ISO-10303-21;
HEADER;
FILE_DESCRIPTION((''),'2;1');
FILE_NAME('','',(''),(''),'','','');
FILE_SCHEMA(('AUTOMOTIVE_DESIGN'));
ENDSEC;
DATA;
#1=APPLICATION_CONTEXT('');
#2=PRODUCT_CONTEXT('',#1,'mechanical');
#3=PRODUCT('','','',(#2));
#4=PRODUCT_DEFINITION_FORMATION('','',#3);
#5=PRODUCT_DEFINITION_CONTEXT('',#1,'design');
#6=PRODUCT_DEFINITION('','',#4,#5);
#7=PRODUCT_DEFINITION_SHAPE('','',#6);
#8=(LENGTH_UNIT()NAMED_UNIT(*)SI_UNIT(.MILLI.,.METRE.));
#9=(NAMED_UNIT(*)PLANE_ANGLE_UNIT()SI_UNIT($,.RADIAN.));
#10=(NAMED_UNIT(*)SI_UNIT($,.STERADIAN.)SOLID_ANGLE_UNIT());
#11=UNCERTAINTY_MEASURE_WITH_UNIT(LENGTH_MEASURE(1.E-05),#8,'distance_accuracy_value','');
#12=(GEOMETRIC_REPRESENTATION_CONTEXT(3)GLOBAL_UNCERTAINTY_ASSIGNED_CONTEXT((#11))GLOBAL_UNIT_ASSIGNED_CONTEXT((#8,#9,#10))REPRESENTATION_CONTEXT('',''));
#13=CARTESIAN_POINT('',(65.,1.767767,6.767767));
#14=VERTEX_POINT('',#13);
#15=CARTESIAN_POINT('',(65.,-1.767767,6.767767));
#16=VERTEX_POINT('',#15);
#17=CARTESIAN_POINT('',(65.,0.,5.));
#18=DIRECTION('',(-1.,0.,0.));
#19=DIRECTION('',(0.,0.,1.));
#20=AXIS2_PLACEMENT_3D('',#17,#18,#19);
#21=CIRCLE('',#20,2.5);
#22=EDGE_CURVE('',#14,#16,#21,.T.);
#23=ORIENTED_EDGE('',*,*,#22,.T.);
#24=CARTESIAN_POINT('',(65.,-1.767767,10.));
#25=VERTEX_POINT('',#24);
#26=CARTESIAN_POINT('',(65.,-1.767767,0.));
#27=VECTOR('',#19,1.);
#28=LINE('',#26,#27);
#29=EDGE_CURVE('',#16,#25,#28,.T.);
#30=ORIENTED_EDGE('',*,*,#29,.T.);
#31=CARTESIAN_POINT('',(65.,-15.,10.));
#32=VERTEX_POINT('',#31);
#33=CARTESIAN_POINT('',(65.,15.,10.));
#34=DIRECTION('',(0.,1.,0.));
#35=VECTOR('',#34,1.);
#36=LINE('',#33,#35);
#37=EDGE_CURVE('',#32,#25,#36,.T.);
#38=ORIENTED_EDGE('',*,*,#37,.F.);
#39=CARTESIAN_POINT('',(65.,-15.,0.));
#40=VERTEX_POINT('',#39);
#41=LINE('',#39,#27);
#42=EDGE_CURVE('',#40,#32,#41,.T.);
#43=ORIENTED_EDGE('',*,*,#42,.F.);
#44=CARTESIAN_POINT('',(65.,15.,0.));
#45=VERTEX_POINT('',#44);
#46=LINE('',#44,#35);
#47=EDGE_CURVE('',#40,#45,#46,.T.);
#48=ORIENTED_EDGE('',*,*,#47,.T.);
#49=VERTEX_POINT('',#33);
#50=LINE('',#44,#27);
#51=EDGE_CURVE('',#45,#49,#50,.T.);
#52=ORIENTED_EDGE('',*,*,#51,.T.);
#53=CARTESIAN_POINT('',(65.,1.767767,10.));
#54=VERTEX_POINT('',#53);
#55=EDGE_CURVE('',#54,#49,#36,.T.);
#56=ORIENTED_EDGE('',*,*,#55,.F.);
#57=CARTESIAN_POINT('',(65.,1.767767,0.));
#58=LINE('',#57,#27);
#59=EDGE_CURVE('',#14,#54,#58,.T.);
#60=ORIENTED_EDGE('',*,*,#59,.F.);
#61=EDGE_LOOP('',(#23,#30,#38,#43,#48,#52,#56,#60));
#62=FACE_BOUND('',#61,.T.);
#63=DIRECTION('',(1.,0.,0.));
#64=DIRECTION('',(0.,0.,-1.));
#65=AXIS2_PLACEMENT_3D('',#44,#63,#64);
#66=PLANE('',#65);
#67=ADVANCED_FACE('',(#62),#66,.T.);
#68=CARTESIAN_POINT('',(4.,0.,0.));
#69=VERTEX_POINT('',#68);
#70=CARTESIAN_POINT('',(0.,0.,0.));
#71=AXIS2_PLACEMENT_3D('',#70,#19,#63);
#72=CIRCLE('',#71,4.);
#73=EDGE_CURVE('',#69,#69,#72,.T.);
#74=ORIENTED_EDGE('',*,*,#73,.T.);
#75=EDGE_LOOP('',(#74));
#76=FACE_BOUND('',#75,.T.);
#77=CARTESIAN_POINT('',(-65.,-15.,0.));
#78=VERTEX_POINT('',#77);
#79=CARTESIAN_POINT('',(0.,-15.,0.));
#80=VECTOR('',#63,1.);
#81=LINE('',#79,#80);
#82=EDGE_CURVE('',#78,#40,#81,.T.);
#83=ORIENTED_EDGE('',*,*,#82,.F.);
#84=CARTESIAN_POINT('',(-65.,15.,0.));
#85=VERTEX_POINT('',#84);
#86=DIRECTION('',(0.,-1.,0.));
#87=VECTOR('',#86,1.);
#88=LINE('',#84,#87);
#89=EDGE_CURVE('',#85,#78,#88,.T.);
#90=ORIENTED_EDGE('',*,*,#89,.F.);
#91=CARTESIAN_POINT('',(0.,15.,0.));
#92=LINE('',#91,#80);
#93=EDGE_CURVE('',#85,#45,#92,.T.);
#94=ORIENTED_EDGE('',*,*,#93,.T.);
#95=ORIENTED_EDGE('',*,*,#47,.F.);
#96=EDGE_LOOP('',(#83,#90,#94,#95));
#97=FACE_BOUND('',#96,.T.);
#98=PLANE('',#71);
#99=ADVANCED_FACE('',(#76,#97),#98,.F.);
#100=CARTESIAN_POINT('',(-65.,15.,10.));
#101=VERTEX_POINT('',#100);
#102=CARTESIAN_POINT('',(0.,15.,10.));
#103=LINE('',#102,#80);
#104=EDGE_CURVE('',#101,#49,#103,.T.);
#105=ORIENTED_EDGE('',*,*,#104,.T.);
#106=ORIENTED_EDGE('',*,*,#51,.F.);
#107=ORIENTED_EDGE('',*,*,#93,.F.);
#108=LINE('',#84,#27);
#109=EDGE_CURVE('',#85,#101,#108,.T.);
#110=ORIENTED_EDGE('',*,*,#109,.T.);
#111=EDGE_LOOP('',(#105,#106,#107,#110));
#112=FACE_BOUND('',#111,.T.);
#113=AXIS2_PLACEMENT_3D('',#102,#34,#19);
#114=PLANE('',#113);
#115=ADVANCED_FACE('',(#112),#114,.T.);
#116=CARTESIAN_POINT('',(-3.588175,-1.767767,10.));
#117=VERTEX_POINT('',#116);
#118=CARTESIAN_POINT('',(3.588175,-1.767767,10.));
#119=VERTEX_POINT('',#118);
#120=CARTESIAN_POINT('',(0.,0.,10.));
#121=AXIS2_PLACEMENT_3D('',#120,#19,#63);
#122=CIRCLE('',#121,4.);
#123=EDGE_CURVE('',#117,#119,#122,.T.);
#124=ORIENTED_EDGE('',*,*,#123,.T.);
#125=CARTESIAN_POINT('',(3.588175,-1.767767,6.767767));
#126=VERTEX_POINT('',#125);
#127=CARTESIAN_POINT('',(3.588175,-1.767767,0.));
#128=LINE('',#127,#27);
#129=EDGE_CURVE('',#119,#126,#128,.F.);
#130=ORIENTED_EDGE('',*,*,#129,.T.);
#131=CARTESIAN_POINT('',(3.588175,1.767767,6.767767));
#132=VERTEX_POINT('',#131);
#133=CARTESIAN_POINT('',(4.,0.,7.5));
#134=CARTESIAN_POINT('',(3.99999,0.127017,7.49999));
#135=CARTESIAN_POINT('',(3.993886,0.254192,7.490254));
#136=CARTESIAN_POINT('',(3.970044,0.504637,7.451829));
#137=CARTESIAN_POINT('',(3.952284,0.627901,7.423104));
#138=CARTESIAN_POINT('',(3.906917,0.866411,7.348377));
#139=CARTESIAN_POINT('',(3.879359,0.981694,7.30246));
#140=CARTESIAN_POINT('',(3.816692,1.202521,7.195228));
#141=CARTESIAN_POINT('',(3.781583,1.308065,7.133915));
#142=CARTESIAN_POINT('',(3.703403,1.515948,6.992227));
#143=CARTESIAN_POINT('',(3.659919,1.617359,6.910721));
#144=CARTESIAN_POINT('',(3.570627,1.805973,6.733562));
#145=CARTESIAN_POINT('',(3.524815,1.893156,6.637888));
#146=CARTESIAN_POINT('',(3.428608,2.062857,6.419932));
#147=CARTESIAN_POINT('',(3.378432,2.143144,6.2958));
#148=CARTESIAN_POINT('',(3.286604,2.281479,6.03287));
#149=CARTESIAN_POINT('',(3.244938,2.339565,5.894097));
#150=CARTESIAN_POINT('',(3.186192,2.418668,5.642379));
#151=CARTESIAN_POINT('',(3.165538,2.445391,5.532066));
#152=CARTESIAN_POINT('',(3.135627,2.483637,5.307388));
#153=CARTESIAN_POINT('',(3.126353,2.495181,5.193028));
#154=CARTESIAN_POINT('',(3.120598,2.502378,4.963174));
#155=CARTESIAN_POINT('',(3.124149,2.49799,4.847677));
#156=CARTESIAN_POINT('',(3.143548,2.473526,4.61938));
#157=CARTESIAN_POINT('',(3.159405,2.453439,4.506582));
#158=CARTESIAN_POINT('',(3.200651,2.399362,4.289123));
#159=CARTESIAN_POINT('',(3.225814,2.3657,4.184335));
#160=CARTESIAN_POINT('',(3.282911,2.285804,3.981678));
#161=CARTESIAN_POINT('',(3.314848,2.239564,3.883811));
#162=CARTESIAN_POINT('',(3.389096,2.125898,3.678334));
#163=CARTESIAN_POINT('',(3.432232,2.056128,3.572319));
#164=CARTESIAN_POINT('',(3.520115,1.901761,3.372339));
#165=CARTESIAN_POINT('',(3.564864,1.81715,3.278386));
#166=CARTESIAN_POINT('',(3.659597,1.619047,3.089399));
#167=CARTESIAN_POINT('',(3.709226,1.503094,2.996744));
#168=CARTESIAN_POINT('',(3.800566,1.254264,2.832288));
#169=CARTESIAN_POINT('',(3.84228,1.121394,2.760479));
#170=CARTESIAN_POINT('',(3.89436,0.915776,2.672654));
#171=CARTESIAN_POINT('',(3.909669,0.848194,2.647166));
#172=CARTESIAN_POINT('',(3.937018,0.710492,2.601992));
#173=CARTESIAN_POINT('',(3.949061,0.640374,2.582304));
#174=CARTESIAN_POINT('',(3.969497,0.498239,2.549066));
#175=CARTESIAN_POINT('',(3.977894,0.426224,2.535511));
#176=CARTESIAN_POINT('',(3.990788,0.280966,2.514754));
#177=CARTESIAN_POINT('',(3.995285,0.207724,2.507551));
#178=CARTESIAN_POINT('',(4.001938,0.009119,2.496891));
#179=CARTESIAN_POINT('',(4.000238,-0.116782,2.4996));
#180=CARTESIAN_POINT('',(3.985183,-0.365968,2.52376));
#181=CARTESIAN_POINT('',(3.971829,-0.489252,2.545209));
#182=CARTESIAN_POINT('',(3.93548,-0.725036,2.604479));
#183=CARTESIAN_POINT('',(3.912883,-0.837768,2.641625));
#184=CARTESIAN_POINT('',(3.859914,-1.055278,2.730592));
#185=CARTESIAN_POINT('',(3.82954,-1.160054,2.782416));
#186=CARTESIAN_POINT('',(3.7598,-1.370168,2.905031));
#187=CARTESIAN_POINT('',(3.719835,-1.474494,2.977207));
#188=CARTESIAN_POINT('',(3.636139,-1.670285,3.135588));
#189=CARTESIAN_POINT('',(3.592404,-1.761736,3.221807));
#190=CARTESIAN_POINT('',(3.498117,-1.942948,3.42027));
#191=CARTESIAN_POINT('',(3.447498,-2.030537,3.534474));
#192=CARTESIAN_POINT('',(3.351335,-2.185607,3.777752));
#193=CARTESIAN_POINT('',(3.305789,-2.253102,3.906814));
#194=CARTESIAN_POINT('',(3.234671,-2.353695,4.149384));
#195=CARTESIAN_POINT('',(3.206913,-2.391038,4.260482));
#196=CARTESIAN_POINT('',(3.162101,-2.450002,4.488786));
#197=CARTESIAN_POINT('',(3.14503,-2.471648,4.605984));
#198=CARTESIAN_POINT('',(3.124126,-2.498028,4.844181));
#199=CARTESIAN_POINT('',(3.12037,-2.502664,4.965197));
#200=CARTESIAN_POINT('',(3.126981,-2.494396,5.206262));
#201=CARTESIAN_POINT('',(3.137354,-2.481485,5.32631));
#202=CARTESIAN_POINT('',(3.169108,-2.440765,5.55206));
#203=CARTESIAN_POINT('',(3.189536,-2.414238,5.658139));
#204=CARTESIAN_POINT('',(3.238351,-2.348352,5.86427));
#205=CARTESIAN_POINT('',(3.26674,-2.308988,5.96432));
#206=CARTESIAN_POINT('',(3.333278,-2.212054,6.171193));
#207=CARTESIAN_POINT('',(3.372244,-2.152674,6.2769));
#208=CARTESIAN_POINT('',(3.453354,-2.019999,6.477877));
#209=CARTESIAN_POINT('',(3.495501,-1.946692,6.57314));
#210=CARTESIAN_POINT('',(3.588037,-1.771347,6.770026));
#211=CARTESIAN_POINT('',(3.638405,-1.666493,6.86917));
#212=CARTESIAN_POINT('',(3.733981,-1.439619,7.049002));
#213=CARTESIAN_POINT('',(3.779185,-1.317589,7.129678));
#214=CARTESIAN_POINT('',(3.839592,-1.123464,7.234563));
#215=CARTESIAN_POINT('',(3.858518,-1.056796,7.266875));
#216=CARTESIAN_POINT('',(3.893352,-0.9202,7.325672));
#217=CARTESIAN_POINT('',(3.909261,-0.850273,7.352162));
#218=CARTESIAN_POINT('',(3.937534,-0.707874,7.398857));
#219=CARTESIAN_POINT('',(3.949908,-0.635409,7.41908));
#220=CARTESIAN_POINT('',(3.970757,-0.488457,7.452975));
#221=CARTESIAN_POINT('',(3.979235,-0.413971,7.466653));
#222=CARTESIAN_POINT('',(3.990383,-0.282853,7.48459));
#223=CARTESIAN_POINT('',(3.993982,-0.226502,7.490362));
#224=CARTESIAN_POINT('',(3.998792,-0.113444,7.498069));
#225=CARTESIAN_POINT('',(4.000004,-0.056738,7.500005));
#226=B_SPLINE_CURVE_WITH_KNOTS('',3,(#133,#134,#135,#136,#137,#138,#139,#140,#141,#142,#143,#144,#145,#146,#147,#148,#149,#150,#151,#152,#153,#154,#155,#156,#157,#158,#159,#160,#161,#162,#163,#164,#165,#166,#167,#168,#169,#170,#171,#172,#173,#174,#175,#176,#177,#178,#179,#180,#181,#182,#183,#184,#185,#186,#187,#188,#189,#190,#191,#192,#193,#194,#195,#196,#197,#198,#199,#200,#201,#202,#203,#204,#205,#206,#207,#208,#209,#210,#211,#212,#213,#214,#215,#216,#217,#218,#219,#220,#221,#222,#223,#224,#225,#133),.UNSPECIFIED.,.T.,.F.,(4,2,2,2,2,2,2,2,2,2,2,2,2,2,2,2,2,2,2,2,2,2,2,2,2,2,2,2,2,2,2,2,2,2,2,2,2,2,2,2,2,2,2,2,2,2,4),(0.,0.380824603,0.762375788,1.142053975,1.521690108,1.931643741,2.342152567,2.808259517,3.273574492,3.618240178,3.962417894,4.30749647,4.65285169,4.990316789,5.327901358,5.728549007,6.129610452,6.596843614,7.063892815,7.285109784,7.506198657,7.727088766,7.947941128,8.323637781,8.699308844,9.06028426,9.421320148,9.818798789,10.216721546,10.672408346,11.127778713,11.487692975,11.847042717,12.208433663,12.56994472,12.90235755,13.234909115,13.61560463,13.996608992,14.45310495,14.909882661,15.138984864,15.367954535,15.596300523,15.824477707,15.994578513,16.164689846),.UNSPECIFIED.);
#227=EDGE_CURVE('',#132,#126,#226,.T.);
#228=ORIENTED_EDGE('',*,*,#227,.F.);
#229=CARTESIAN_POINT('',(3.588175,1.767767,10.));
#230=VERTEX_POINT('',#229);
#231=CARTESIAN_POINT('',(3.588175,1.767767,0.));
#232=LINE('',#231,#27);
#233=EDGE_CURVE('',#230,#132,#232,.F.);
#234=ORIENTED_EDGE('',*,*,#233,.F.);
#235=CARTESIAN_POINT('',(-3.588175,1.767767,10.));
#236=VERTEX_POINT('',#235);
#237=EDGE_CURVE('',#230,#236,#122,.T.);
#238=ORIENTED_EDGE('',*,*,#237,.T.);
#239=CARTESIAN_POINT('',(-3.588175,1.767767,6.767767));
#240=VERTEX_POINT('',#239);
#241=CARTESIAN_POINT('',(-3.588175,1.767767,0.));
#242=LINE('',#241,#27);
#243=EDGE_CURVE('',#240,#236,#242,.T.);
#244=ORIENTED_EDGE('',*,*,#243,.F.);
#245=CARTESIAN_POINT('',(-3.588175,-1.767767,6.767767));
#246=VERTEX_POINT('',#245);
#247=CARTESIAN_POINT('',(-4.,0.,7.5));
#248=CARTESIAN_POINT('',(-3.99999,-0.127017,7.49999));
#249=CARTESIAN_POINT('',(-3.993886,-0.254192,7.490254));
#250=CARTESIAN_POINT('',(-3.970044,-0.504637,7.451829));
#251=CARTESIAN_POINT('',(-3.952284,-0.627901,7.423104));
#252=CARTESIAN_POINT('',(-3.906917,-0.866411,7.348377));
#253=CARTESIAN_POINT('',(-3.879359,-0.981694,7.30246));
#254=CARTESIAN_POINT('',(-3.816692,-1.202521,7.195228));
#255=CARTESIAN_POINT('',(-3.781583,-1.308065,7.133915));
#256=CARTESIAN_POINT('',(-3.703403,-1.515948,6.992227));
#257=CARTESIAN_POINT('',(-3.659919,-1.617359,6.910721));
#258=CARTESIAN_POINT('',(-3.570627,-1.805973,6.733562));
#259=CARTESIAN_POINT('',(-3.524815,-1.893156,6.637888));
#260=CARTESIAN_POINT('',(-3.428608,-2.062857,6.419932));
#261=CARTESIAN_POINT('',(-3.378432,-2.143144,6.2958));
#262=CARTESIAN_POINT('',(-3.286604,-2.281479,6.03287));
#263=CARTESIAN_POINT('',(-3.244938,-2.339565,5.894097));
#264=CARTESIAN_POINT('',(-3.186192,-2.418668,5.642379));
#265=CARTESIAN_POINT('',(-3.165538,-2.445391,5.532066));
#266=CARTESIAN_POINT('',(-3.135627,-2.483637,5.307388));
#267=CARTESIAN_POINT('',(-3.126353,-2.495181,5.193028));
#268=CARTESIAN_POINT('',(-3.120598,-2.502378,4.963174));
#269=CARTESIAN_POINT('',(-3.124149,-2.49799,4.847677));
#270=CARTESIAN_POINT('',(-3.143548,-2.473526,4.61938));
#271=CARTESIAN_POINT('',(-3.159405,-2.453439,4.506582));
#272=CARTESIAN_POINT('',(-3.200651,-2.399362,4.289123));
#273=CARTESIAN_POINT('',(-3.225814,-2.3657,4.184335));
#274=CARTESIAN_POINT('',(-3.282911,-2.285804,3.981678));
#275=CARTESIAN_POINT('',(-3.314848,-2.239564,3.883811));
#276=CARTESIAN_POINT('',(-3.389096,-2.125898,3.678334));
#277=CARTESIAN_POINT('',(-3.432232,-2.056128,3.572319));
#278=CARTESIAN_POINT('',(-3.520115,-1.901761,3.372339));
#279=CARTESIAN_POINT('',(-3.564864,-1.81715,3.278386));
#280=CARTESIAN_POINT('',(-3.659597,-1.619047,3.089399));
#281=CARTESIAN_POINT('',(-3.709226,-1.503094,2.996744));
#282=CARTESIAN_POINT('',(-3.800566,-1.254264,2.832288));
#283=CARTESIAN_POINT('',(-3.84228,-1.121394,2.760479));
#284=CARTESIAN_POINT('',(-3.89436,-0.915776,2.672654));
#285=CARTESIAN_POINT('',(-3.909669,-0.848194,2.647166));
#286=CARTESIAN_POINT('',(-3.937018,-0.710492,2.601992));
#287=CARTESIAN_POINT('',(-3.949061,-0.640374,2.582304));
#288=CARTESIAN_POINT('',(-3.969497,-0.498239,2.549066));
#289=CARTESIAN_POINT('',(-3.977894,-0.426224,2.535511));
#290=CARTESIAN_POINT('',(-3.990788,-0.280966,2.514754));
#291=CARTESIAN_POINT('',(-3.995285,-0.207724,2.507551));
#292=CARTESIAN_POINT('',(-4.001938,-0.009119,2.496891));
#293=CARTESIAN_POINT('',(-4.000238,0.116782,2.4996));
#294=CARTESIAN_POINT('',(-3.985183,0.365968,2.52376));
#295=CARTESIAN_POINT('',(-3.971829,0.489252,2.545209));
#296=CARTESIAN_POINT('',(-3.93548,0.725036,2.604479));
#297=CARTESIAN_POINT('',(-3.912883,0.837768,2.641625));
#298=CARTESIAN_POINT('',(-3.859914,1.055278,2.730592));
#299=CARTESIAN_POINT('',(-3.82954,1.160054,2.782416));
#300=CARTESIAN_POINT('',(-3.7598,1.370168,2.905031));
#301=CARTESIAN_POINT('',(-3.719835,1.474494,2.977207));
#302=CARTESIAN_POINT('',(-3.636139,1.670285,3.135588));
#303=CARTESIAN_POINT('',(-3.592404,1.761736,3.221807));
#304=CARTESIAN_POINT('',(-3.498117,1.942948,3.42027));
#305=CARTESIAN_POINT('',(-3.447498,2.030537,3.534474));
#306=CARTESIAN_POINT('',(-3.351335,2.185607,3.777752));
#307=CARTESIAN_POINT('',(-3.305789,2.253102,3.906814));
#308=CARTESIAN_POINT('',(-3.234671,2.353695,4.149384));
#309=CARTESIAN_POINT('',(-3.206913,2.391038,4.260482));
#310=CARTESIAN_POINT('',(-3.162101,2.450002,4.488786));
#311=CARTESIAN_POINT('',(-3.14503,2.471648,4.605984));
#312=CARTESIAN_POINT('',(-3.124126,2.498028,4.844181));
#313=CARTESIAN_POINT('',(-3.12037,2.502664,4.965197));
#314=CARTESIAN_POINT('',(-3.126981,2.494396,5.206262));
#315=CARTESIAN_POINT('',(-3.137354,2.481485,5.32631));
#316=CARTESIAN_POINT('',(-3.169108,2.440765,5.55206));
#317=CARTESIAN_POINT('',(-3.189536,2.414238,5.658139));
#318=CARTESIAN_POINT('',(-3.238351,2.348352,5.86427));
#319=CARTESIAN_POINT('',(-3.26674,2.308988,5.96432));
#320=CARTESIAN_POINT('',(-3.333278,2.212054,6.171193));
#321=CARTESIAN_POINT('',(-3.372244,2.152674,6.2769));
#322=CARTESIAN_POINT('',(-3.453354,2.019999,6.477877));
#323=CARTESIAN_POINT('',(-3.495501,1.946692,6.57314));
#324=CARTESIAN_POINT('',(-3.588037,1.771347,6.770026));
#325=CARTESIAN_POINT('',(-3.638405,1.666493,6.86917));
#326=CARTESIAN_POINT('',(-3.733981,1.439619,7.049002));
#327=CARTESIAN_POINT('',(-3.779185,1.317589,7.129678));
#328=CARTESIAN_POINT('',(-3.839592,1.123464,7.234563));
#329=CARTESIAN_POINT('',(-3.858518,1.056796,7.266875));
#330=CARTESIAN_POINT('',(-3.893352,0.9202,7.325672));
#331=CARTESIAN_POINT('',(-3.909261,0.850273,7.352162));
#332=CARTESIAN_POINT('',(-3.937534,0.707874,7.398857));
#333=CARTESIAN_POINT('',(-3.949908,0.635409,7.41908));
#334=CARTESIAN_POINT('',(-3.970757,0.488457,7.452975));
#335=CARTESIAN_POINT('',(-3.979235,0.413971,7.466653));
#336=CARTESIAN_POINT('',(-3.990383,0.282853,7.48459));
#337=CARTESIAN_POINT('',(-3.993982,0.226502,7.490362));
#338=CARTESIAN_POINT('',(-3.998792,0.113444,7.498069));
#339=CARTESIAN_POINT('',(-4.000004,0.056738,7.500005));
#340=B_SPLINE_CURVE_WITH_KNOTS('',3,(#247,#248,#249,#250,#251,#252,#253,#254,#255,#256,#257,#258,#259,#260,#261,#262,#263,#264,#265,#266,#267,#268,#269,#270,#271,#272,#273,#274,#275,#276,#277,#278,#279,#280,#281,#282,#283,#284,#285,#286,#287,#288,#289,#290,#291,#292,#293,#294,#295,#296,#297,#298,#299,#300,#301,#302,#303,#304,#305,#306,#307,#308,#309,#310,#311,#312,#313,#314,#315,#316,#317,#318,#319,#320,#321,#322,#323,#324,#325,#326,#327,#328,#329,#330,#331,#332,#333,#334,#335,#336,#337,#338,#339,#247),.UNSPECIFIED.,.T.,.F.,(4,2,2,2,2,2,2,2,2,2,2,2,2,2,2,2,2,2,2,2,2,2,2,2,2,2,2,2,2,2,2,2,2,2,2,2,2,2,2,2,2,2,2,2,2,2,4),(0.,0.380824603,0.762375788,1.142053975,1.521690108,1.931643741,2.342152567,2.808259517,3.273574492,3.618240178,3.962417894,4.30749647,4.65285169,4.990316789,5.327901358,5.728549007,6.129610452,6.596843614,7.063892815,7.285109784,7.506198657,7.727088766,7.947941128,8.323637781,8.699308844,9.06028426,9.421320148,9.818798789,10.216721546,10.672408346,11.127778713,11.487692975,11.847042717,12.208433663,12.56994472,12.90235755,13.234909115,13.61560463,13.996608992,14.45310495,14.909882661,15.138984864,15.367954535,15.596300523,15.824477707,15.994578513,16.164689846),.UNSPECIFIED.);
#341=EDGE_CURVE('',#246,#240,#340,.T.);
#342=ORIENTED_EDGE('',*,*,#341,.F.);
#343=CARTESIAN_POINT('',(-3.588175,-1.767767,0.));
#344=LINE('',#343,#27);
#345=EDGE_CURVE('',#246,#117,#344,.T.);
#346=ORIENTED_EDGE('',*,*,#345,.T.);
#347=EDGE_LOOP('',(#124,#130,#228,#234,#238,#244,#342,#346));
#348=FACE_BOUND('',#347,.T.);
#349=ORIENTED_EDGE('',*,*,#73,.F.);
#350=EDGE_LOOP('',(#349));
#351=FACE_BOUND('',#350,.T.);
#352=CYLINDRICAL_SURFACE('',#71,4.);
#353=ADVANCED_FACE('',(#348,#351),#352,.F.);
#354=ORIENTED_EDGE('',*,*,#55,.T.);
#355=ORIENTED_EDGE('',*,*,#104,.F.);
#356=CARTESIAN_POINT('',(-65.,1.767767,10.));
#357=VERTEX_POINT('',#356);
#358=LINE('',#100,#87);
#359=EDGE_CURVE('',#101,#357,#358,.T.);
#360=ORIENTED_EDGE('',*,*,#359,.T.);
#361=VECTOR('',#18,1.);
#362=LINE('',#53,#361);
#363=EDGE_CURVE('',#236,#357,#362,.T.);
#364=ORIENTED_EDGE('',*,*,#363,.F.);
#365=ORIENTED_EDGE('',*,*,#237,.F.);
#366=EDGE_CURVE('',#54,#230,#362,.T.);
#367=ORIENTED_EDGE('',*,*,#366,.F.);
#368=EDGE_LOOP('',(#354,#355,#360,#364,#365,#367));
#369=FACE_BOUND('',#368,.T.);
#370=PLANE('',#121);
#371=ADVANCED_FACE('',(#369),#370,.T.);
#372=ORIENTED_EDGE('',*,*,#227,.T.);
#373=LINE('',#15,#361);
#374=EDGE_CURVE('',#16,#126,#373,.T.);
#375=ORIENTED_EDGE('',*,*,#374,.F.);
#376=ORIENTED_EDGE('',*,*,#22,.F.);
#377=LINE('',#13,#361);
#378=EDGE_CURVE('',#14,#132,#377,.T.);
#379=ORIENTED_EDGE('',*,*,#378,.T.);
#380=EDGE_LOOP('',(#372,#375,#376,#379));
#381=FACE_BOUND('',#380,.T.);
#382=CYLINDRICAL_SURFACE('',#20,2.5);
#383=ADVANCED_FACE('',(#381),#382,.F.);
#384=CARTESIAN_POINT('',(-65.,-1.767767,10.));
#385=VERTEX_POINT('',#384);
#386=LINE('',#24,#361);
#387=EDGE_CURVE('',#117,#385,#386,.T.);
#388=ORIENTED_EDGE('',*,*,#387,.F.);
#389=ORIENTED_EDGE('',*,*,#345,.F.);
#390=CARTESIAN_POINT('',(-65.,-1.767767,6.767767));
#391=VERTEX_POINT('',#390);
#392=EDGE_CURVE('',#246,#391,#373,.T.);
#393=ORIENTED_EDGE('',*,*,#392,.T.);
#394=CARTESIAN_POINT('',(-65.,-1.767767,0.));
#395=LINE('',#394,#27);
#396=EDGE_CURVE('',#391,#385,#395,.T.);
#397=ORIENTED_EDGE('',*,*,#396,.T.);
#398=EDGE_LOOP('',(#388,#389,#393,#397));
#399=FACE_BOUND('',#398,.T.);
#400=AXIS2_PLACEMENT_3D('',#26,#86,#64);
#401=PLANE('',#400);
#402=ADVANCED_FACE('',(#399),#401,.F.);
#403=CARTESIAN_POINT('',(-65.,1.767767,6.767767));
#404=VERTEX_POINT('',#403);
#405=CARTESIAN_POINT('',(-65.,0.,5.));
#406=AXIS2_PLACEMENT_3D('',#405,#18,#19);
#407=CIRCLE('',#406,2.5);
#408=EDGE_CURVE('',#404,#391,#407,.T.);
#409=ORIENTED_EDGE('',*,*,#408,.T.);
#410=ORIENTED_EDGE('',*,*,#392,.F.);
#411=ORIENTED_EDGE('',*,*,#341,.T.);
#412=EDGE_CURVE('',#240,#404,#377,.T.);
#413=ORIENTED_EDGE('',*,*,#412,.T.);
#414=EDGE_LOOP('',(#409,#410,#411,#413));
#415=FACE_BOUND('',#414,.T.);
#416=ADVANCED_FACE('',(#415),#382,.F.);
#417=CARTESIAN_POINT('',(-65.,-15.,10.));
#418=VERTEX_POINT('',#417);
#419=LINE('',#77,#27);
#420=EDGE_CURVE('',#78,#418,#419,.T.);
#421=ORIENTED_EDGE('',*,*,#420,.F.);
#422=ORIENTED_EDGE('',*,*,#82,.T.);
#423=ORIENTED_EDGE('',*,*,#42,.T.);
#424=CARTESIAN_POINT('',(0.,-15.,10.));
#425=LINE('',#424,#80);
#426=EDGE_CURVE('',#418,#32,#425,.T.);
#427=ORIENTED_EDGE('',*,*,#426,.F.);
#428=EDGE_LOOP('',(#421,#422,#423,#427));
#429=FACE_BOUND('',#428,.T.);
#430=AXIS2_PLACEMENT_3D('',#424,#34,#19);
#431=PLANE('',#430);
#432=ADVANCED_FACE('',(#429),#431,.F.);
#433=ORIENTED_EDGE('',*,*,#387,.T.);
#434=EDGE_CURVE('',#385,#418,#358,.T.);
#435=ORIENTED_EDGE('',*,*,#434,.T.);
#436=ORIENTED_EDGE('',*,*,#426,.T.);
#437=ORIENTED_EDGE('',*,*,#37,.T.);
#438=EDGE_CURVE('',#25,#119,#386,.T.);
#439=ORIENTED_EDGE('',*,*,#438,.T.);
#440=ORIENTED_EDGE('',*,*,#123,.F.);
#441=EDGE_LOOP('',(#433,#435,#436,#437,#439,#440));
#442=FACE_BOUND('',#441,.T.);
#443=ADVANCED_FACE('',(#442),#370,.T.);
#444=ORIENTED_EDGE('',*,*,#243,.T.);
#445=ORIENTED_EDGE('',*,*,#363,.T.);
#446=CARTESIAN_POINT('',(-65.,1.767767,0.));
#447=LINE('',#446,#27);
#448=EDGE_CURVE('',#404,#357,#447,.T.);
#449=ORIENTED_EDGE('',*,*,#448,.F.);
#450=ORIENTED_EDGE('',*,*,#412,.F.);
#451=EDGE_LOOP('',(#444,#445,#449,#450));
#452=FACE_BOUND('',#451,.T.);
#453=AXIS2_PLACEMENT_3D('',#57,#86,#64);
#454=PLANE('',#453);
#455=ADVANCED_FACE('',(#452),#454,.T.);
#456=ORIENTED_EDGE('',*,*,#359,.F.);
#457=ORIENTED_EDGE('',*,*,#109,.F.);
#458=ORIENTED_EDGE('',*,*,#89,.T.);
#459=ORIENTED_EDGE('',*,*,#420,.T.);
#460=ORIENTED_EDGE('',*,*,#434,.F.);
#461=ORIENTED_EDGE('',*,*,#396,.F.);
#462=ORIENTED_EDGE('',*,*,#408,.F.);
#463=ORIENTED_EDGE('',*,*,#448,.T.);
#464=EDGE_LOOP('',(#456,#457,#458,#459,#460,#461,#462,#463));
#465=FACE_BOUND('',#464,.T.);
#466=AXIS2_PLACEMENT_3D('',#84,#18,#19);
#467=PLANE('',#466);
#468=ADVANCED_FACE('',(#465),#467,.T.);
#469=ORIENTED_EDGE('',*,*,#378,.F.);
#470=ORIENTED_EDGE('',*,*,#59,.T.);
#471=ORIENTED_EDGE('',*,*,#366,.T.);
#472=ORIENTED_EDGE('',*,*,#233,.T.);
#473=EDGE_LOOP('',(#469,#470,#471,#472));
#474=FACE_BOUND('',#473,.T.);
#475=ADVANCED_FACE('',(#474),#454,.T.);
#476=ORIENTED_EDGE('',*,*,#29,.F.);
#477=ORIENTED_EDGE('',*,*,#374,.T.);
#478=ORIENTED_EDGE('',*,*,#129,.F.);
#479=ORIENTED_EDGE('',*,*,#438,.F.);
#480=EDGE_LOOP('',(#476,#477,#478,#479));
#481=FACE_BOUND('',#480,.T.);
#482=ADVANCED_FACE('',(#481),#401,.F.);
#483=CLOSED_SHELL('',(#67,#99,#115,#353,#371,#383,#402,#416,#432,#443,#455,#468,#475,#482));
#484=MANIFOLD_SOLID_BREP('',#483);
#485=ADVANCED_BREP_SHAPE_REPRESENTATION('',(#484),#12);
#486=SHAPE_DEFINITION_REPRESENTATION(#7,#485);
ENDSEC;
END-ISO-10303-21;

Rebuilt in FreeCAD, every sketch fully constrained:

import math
import FreeCAD as App
import Part
import Sketcher
from FreeCAD import Vector
Q = App.Units.Quantity

doc = App.newDocument("Part")
body = doc.addObject("PartDesign::Body", "Body")

# Sketch on XY plane
sketch1 = doc.addObject("Sketcher::SketchObject", "Sketch")
body.addObject(sketch1)
sketch1.AttachmentSupport = (doc.XY_Plane, [""])
sketch1.MapMode = "FlatFace"
sketch1.addGeometry([
    Part.LineSegment(Vector(50, 15, 0), Vector(-50, 15, 0)),  # 0
    Part.ArcOfCircle(Part.Circle(Vector(-50, 0, 0), Vector(0, 0, 1), 15), math.radians(90), math.radians(270)),  # 1
    Part.LineSegment(Vector(-50, -15, 0), Vector(50, -15, 0)),  # 2
    Part.ArcOfCircle(Part.Circle(Vector(50, 0, 0), Vector(0, 0, 1), 15), math.radians(-90), math.radians(90)),  # 3
    Part.Circle(Vector(0, 0, 0), Vector(0, 0, 1), 4),  # 4
], False)
sketch1.addConstraint([
    Sketcher.Constraint("Tangent", 0, 2, 1, 1),
    Sketcher.Constraint("Tangent", 1, 2, 2, 1),
    Sketcher.Constraint("Tangent", 2, 2, 3, 1),
    Sketcher.Constraint("Tangent", 3, 2, 0, 1),
    Sketcher.Constraint("Horizontal", 0),
    Sketcher.Constraint("Horizontal", 2),
    Sketcher.Constraint("Coincident", 4, 3, -1, 1),
    Sketcher.Constraint("Symmetric", 1, 3, 3, 3, -1, 1),
    Sketcher.Constraint("Diameter", 4, Q("8 mm")),
    Sketcher.Constraint("Radius", 1, Q("15 mm")),
    Sketcher.Constraint("DistanceX", 0, 2, 0, 1, Q("100 mm")),
])
pad1 = doc.addObject("PartDesign::Pad", "Pad")
body.addObject(pad1)
pad1.Profile = sketch1
pad1.Length = 10

# Sketch on XY plane
sketch2 = doc.addObject("Sketcher::SketchObject", "Sketch001")
body.addObject(sketch2)
sketch2.AttachmentSupport = (doc.XY_Plane, [""])
sketch2.MapMode = "FlatFace"
sketch2.AttachmentOffset = App.Placement(Vector(0, 0, 10), App.Rotation())
sketch2.addGeometry([
    Part.LineSegment(Vector(2, 12, 0), Vector(2, 8, 0)),  # 0
    Part.LineSegment(Vector(2, 8, 0), Vector(50, 8, 0)),  # 1
    Part.LineSegment(Vector(50, 8, 0), Vector(50, 12, 0)),  # 2
    Part.LineSegment(Vector(50, 12, 0), Vector(2, 12, 0)),  # 3
    Part.LineSegment(Vector(-50, 12, 0), Vector(-50, 8, 0)),  # 4
    Part.LineSegment(Vector(-50, 8, 0), Vector(-2, 8, 0)),  # 5
    Part.LineSegment(Vector(-2, 8, 0), Vector(-2, 12, 0)),  # 6
    Part.LineSegment(Vector(-2, 12, 0), Vector(-50, 12, 0)),  # 7
    Part.LineSegment(Vector(-50, -8, 0), Vector(-50, -12, 0)),  # 8
    Part.LineSegment(Vector(-50, -12, 0), Vector(-2, -12, 0)),  # 9
    Part.LineSegment(Vector(-2, -12, 0), Vector(-2, -8, 0)),  # 10
    Part.LineSegment(Vector(-2, -8, 0), Vector(-50, -8, 0)),  # 11
    Part.LineSegment(Vector(2, -8, 0), Vector(2, -12, 0)),  # 12
    Part.LineSegment(Vector(2, -12, 0), Vector(50, -12, 0)),  # 13
    Part.LineSegment(Vector(50, -12, 0), Vector(50, -8, 0)),  # 14
    Part.LineSegment(Vector(50, -8, 0), Vector(2, -8, 0)),  # 15
], False)
sketch2.addConstraint([
    Sketcher.Constraint("Coincident", 0, 2, 1, 1),
    Sketcher.Constraint("Coincident", 1, 2, 2, 1),
    Sketcher.Constraint("Coincident", 2, 2, 3, 1),
    Sketcher.Constraint("Coincident", 3, 2, 0, 1),
    Sketcher.Constraint("Coincident", 4, 2, 5, 1),
    Sketcher.Constraint("Coincident", 5, 2, 6, 1),
    Sketcher.Constraint("Coincident", 6, 2, 7, 1),
    Sketcher.Constraint("Coincident", 7, 2, 4, 1),
    Sketcher.Constraint("Coincident", 8, 2, 9, 1),
    Sketcher.Constraint("Coincident", 9, 2, 10, 1),
    Sketcher.Constraint("Coincident", 10, 2, 11, 1),
    Sketcher.Constraint("Coincident", 11, 2, 8, 1),
    Sketcher.Constraint("Coincident", 12, 2, 13, 1),
    Sketcher.Constraint("Coincident", 13, 2, 14, 1),
    Sketcher.Constraint("Coincident", 14, 2, 15, 1),
    Sketcher.Constraint("Coincident", 15, 2, 12, 1),
    Sketcher.Constraint("Vertical", 0),
    Sketcher.Constraint("Horizontal", 1),
    Sketcher.Constraint("Vertical", 2),
    Sketcher.Constraint("Horizontal", 3),
    Sketcher.Constraint("Vertical", 4),
    Sketcher.Constraint("Horizontal", 5),
    Sketcher.Constraint("Vertical", 6),
    Sketcher.Constraint("Horizontal", 7),
    Sketcher.Constraint("Vertical", 8),
    Sketcher.Constraint("Horizontal", 9),
    Sketcher.Constraint("Vertical", 10),
    Sketcher.Constraint("Horizontal", 11),
    Sketcher.Constraint("Vertical", 12),
    Sketcher.Constraint("Horizontal", 13),
    Sketcher.Constraint("Vertical", 14),
    Sketcher.Constraint("Horizontal", 15),
    Sketcher.Constraint("Symmetric", 2, 2, 8, 2, -1, 1),
    Sketcher.Constraint("Symmetric", 0, 2, 10, 2, -1, 1),
    Sketcher.Constraint("Symmetric", 6, 2, 12, 2, -1, 1),
    Sketcher.Constraint("Symmetric", 4, 2, 14, 2, -1, 1),
    Sketcher.Constraint("Symmetric", 1, 2, 4, 2, -2),
    Sketcher.Constraint("Symmetric", 3, 2, 6, 2, -2),
    Sketcher.Constraint("DistanceX", 1, 1, 1, 2, Q("48 mm")),
    Sketcher.Constraint("DistanceY", 0, 2, 0, 1, Q("4 mm")),
    Sketcher.Constraint("DistanceX", -1, 1, 0, 2, Q("2 mm")),
    Sketcher.Constraint("DistanceY", -1, 1, 0, 2, Q("8 mm")),
])
pocket1 = doc.addObject("PartDesign::Pocket", "Pocket")
body.addObject(pocket1)
pocket1.Profile = sketch2
pocket1.Type = "ThroughAll"

# Sketch on XY plane
sketch3 = doc.addObject("Sketcher::SketchObject", "Sketch002")
body.addObject(sketch3)
sketch3.AttachmentSupport = (doc.XY_Plane, [""])
sketch3.MapMode = "FlatFace"
sketch3.AttachmentOffset = App.Placement(Vector(0, 0, 10), App.Rotation())
sketch3.addGeometry([
    Part.LineSegment(Vector(-3.464102, 2, 0), Vector(-50, 2, 0)),  # 0
    Part.LineSegment(Vector(-50, 2, 0), Vector(-50, -2, 0)),  # 1
    Part.LineSegment(Vector(-50, -2, 0), Vector(-3.464102, -2, 0)),  # 2
    Part.ArcOfCircle(Part.Circle(Vector(0, 0, 0), Vector(0, 0, 1), 4), math.radians(-180), math.radians(-150)),  # 3
    Part.ArcOfCircle(Part.Circle(Vector(0, 0, 0), Vector(0, 0, 1), 4), math.radians(150), math.radians(180)),  # 4
    Part.ArcOfCircle(Part.Circle(Vector(0, 0, 0), Vector(0, 0, 1), 4), math.radians(-30), math.radians(0)),  # 5
    Part.LineSegment(Vector(3.464102, -2, 0), Vector(50, -2, 0)),  # 6
    Part.LineSegment(Vector(50, -2, 0), Vector(50, 2, 0)),  # 7
    Part.LineSegment(Vector(50, 2, 0), Vector(3.464102, 2, 0)),  # 8
    Part.ArcOfCircle(Part.Circle(Vector(0, 0, 0), Vector(0, 0, 1), 4), math.radians(0), math.radians(30)),  # 9
], False)
sketch3.addConstraint([
    Sketcher.Constraint("Coincident", 0, 2, 1, 1),
    Sketcher.Constraint("Coincident", 1, 2, 2, 1),
    Sketcher.Constraint("Coincident", 2, 2, 3, 2),
    Sketcher.Constraint("Tangent", 3, 1, 4, 2),
    Sketcher.Constraint("Coincident", 4, 1, 0, 1),
    Sketcher.Constraint("Coincident", 5, 1, 6, 1),
    Sketcher.Constraint("Coincident", 6, 2, 7, 1),
    Sketcher.Constraint("Coincident", 7, 2, 8, 1),
    Sketcher.Constraint("Coincident", 8, 2, 9, 2),
    Sketcher.Constraint("Tangent", 9, 1, 5, 2),
    Sketcher.Constraint("Horizontal", 0),
    Sketcher.Constraint("Vertical", 1),
    Sketcher.Constraint("Horizontal", 2),
    Sketcher.Constraint("Horizontal", 6),
    Sketcher.Constraint("Vertical", 7),
    Sketcher.Constraint("Horizontal", 8),
    Sketcher.Constraint("Coincident", 3, 3, -1, 1),
    Sketcher.Constraint("Coincident", 5, 3, -1, 1),
    Sketcher.Constraint("Equal", 3, 4),
    Sketcher.Constraint("Equal", 4, 5),
    Sketcher.Constraint("Equal", 5, 9),
    Sketcher.Constraint("Symmetric", 0, 2, 6, 2, -1, 1),
    Sketcher.Constraint("PointOnObject", 3, 1, -1),
    Sketcher.Constraint("PointOnObject", 9, 1, -1),
    Sketcher.Constraint("Horizontal", 2, 2, 5, 1),
    Sketcher.Constraint("Horizontal", 4, 1, 7, 2),
    Sketcher.Constraint("Radius", 3, Q("4 mm")),
    Sketcher.Constraint("DistanceY", 1, 2, 1, 1, Q("4 mm")),
    Sketcher.Constraint("DistanceX", 0, 2, -1, 1, Q("50 mm")),
])
pocket2 = doc.addObject("PartDesign::Pocket", "Pocket001")
body.addObject(pocket2)
pocket2.Profile = sketch3
pocket2.Type = "ThroughAll"

# Sketch on XY plane
sketch4 = doc.addObject("Sketcher::SketchObject", "Sketch003")
body.addObject(sketch4)
sketch4.AttachmentSupport = (doc.XY_Plane, [""])
sketch4.MapMode = "FlatFace"
sketch4.AttachmentOffset = App.Placement(Vector(0, 0, 10), App.Rotation())
sketch4.addGeometry([
    Part.LineSegment(Vector(2, 12, 0), Vector(2, 8, 0)),  # 0
    Part.LineSegment(Vector(2, 8, 0), Vector(50, 8, 0)),  # 1
    Part.LineSegment(Vector(50, 8, 0), Vector(50, 12, 0)),  # 2
    Part.LineSegment(Vector(50, 12, 0), Vector(2, 12, 0)),  # 3
    Part.LineSegment(Vector(2, -8, 0), Vector(2, -12, 0)),  # 4
    Part.LineSegment(Vector(2, -12, 0), Vector(50, -12, 0)),  # 5
    Part.LineSegment(Vector(50, -12, 0), Vector(50, -8, 0)),  # 6
    Part.LineSegment(Vector(50, -8, 0), Vector(2, -8, 0)),  # 7
    Part.LineSegment(Vector(-50, 12, 0), Vector(-50, 8, 0)),  # 8
    Part.LineSegment(Vector(-50, 8, 0), Vector(-2, 8, 0)),  # 9
    Part.LineSegment(Vector(-2, 8, 0), Vector(-2, 12, 0)),  # 10
    Part.LineSegment(Vector(-2, 12, 0), Vector(-50, 12, 0)),  # 11
    Part.LineSegment(Vector(-50, -8, 0), Vector(-50, -12, 0)),  # 12
    Part.LineSegment(Vector(-50, -12, 0), Vector(-2, -12, 0)),  # 13
    Part.LineSegment(Vector(-2, -12, 0), Vector(-2, -8, 0)),  # 14
    Part.LineSegment(Vector(-2, -8, 0), Vector(-50, -8, 0)),  # 15
], False)
sketch4.addConstraint([
    Sketcher.Constraint("Coincident", 0, 2, 1, 1),
    Sketcher.Constraint("Coincident", 1, 2, 2, 1),
    Sketcher.Constraint("Coincident", 2, 2, 3, 1),
    Sketcher.Constraint("Coincident", 3, 2, 0, 1),
    Sketcher.Constraint("Coincident", 4, 2, 5, 1),
    Sketcher.Constraint("Coincident", 5, 2, 6, 1),
    Sketcher.Constraint("Coincident", 6, 2, 7, 1),
    Sketcher.Constraint("Coincident", 7, 2, 4, 1),
    Sketcher.Constraint("Coincident", 8, 2, 9, 1),
    Sketcher.Constraint("Coincident", 9, 2, 10, 1),
    Sketcher.Constraint("Coincident", 10, 2, 11, 1),
    Sketcher.Constraint("Coincident", 11, 2, 8, 1),
    Sketcher.Constraint("Coincident", 12, 2, 13, 1),
    Sketcher.Constraint("Coincident", 13, 2, 14, 1),
    Sketcher.Constraint("Coincident", 14, 2, 15, 1),
    Sketcher.Constraint("Coincident", 15, 2, 12, 1),
    Sketcher.Constraint("Vertical", 0),
    Sketcher.Constraint("Horizontal", 1),
    Sketcher.Constraint("Vertical", 2),
    Sketcher.Constraint("Horizontal", 3),
    Sketcher.Constraint("Vertical", 4),
    Sketcher.Constraint("Horizontal", 5),
    Sketcher.Constraint("Vertical", 6),
    Sketcher.Constraint("Horizontal", 7),
    Sketcher.Constraint("Vertical", 8),
    Sketcher.Constraint("Horizontal", 9),
    Sketcher.Constraint("Vertical", 10),
    Sketcher.Constraint("Horizontal", 11),
    Sketcher.Constraint("Vertical", 12),
    Sketcher.Constraint("Horizontal", 13),
    Sketcher.Constraint("Vertical", 14),
    Sketcher.Constraint("Horizontal", 15),
    Sketcher.Constraint("Symmetric", 6, 2, 8, 2, -1, 1),
    Sketcher.Constraint("Symmetric", 4, 2, 10, 2, -1, 1),
    Sketcher.Constraint("Symmetric", 2, 2, 12, 2, -1, 1),
    Sketcher.Constraint("Symmetric", 0, 2, 14, 2, -1, 1),
    Sketcher.Constraint("Symmetric", 1, 2, 8, 2, -2),
    Sketcher.Constraint("Symmetric", 3, 2, 10, 2, -2),
    Sketcher.Constraint("DistanceX", 1, 1, 1, 2, Q("48 mm")),
    Sketcher.Constraint("DistanceY", 0, 2, 0, 1, Q("4 mm")),
    Sketcher.Constraint("DistanceX", -1, 1, 0, 2, Q("2 mm")),
    Sketcher.Constraint("DistanceY", -1, 1, 0, 2, Q("8 mm")),
])
pad2 = doc.addObject("PartDesign::Pad", "Pad001")
body.addObject(pad2)
pad2.Profile = sketch4
pad2.Length = 10
pad2.Reversed = True

# Sketch on YZ plane
sketch5 = doc.addObject("Sketcher::SketchObject", "Sketch004")
body.addObject(sketch5)
sketch5.AttachmentSupport = (doc.YZ_Plane, [""])
sketch5.MapMode = "FlatFace"
sketch5.AttachmentOffset = App.Placement(Vector(0, 0, -50), App.Rotation())
sketch5.addGeometry([
    Part.LineSegment(Vector(2, 10, 0), Vector(-2, 10, 0)),
    Part.LineSegment(Vector(-2, 10, 0), Vector(-2, 0, 0)),
    Part.LineSegment(Vector(-2, 0, 0), Vector(2, 0, 0)),
    Part.LineSegment(Vector(2, 0, 0), Vector(2, 10, 0)),
], False)
sketch5.addConstraint([
    Sketcher.Constraint("Coincident", 0, 2, 1, 1),
    Sketcher.Constraint("Coincident", 1, 2, 2, 1),
    Sketcher.Constraint("Coincident", 2, 2, 3, 1),
    Sketcher.Constraint("Coincident", 3, 2, 0, 1),
    Sketcher.Constraint("Horizontal", 0),
    Sketcher.Constraint("Vertical", 1),
    Sketcher.Constraint("Horizontal", 2),
    Sketcher.Constraint("Vertical", 3),
    Sketcher.Constraint("Symmetric", 1, 2, 2, 2, -1, 1),
    Sketcher.Constraint("DistanceX", 0, 2, 0, 1, Q("4 mm")),
    Sketcher.Constraint("DistanceY", 1, 2, 1, 1, Q("10 mm")),
])
pad3 = doc.addObject("PartDesign::Pad", "Pad002")
body.addObject(pad3)
pad3.Profile = sketch5
pad3.Length = 100

# Sketch on XZ plane
sketch6 = doc.addObject("Sketcher::SketchObject", "Sketch005")
body.addObject(sketch6)
sketch6.AttachmentSupport = (doc.XZ_Plane, [""])
sketch6.MapMode = "FlatFace"
sketch6.AttachmentOffset = App.Placement(Vector(0, 0, 15), App.Rotation())
sketch6.addGeometry([
    Part.LineSegment(Vector(-65, 10, 0), Vector(-65, 0, 0)),
    Part.LineSegment(Vector(-65, 0, 0), Vector(-50, 0, 0)),
    Part.LineSegment(Vector(-50, 0, 0), Vector(-50, 10, 0)),
    Part.LineSegment(Vector(-50, 10, 0), Vector(-65, 10, 0)),
], False)
sketch6.addConstraint([
    Sketcher.Constraint("Coincident", 0, 2, 1, 1),
    Sketcher.Constraint("Coincident", 1, 2, 2, 1),
    Sketcher.Constraint("Coincident", 2, 2, 3, 1),
    Sketcher.Constraint("Coincident", 3, 2, 0, 1),
    Sketcher.Constraint("Vertical", 0),
    Sketcher.Constraint("Horizontal", 1),
    Sketcher.Constraint("Vertical", 2),
    Sketcher.Constraint("Horizontal", 3),
    Sketcher.Constraint("PointOnObject", 0, 2, -1),
    Sketcher.Constraint("DistanceX", 1, 1, 1, 2, Q("15 mm")),
    Sketcher.Constraint("DistanceY", 0, 2, 0, 1, Q("10 mm")),
    Sketcher.Constraint("DistanceX", 0, 2, -1, 1, Q("65 mm")),
])
pocket3 = doc.addObject("PartDesign::Pocket", "Pocket002")
body.addObject(pocket3)
pocket3.Profile = sketch6
pocket3.Length = 100

# Sketch on YZ plane
sketch7 = doc.addObject("Sketcher::SketchObject", "Sketch006")
body.addObject(sketch7)
sketch7.AttachmentSupport = (doc.YZ_Plane, [""])
sketch7.MapMode = "FlatFace"
sketch7.AttachmentOffset = App.Placement(Vector(0, 0, -50), App.Rotation())
sketch7.addGeometry(Part.Circle(Vector(0, 5, 0), Vector(0, 0, 1), 2.5), False)
sketch7.addConstraint([
    Sketcher.Constraint("PointOnObject", 0, 3, -2),
    Sketcher.Constraint("Diameter", 0, Q("5 mm")),
    Sketcher.Constraint("DistanceY", -1, 1, 0, 3, Q("5 mm")),
])
pocket4 = doc.addObject("PartDesign::Pocket", "Pocket003")
body.addObject(pocket4)
pocket4.Profile = sketch7
pocket4.Type = "ThroughAll"
pocket4.Reversed = True

# Sketch on XY plane
sketch8 = doc.addObject("Sketcher::SketchObject", "Sketch007")
body.addObject(sketch8)
sketch8.AttachmentSupport = (doc.XY_Plane, [""])
sketch8.MapMode = "FlatFace"
sketch8.AttachmentOffset = App.Placement(Vector(0, 0, 10), App.Rotation())
sketch8.addGeometry(Part.Circle(Vector(0, 0, 0), Vector(0, 0, 1), 4), False)
sketch8.addConstraint([
    Sketcher.Constraint("Coincident", 0, 3, -1, 1),
    Sketcher.Constraint("Diameter", 0, Q("8 mm")),
])
pocket5 = doc.addObject("PartDesign::Pocket", "Pocket004")
body.addObject(pocket5)
pocket5.Profile = sketch8
pocket5.Type = "ThroughAll"

# Sketch on XY plane
sketch9 = doc.addObject("Sketcher::SketchObject", "Sketch008")
body.addObject(sketch9)
sketch9.AttachmentSupport = (doc.XY_Plane, [""])
sketch9.MapMode = "FlatFace"
sketch9.AttachmentOffset = App.Placement(Vector(0, 0, 10), App.Rotation())
sketch9.addGeometry(Part.Circle(Vector(-50, 0, 0), Vector(0, 0, 1), 15), False)
sketch9.addConstraint([
    Sketcher.Constraint("PointOnObject", 0, 3, -1),
    Sketcher.Constraint("Diameter", 0, Q("30 mm")),
    Sketcher.Constraint("DistanceX", 0, 3, -1, 1, Q("50 mm")),
])
pad4 = doc.addObject("PartDesign::Pad", "Pad003")
body.addObject(pad4)
pad4.Profile = sketch9
pad4.Length = 10
pad4.Reversed = True

# Sketch on XZ plane
sketch10 = doc.addObject("Sketcher::SketchObject", "Sketch009")
body.addObject(sketch10)
sketch10.AttachmentSupport = (doc.XZ_Plane, [""])
sketch10.MapMode = "FlatFace"
sketch10.AttachmentOffset = App.Placement(Vector(0, 0, -15), App.Rotation())
sketch10.addGeometry([
    Part.LineSegment(Vector(-50, 0, 0), Vector(-50, 10, 0)),
    Part.LineSegment(Vector(-50, 10, 0), Vector(50, 10, 0)),
    Part.LineSegment(Vector(50, 10, 0), Vector(50, 0, 0)),
    Part.LineSegment(Vector(50, 0, 0), Vector(-50, 0, 0)),
], False)
sketch10.addConstraint([
    Sketcher.Constraint("Coincident", 0, 2, 1, 1),
    Sketcher.Constraint("Coincident", 1, 2, 2, 1),
    Sketcher.Constraint("Coincident", 2, 2, 3, 1),
    Sketcher.Constraint("Coincident", 3, 2, 0, 1),
    Sketcher.Constraint("Vertical", 0),
    Sketcher.Constraint("Horizontal", 1),
    Sketcher.Constraint("Vertical", 2),
    Sketcher.Constraint("Horizontal", 3),
    Sketcher.Constraint("Symmetric", 2, 2, 3, 2, -1, 1),
    Sketcher.Constraint("DistanceX", 1, 1, 1, 2, Q("100 mm")),
    Sketcher.Constraint("DistanceY", 0, 1, 0, 2, Q("10 mm")),
])
pad5 = doc.addObject("PartDesign::Pad", "Pad004")
body.addObject(pad5)
pad5.Profile = sketch10
pad5.Length = 30

# Sketch on YZ plane
sketch11 = doc.addObject("Sketcher::SketchObject", "Sketch010")
body.addObject(sketch11)
sketch11.AttachmentSupport = (doc.YZ_Plane, [""])
sketch11.MapMode = "FlatFace"
sketch11.AttachmentOffset = App.Placement(Vector(0, 0, 50), App.Rotation())
sketch11.addGeometry(Part.Circle(Vector(0, 5, 0), Vector(0, 0, 1), 2.5), False)
sketch11.addConstraint([
    Sketcher.Constraint("PointOnObject", 0, 3, -2),
    Sketcher.Constraint("Diameter", 0, Q("5 mm")),
    Sketcher.Constraint("DistanceY", -1, 1, 0, 3, Q("5 mm")),
])
pocket6 = doc.addObject("PartDesign::Pocket", "Pocket005")
body.addObject(pocket6)
pocket6.Profile = sketch11
pocket6.Type = "ThroughAll"

# Sketch on XY plane
sketch12 = doc.addObject("Sketcher::SketchObject", "Sketch011")
body.addObject(sketch12)
sketch12.AttachmentSupport = (doc.XY_Plane, [""])
sketch12.MapMode = "FlatFace"
sketch12.AttachmentOffset = App.Placement(Vector(0, 0, 10), App.Rotation())
sketch12.addGeometry(Part.Circle(Vector(0, 0, 0), Vector(0, 0, 1), 4), False)
sketch12.addConstraint([
    Sketcher.Constraint("Coincident", 0, 3, -1, 1),
    Sketcher.Constraint("Diameter", 0, Q("8 mm")),
])
pocket7 = doc.addObject("PartDesign::Pocket", "Pocket006")
body.addObject(pocket7)
pocket7.Profile = sketch12
pocket7.Type = "ThroughAll"

# Sketch on XY plane
sketch13 = doc.addObject("Sketcher::SketchObject", "Sketch012")
body.addObject(sketch13)
sketch13.AttachmentSupport = (doc.XY_Plane, [""])
sketch13.MapMode = "FlatFace"
sketch13.AttachmentOffset = App.Placement(Vector(0, 0, 10), App.Rotation())
sketch13.addGeometry([
    Part.LineSegment(Vector(50, 15, 0), Vector(50, -15, 0)),  # 0
    Part.LineSegment(Vector(50, -15, 0), Vector(65, -15, 0)),  # 1
    Part.LineSegment(Vector(65, -15, 0), Vector(65, 15, 0)),  # 2
    Part.LineSegment(Vector(65, 15, 0), Vector(50, 15, 0)),  # 3
    Part.LineSegment(Vector(-65, 15, 0), Vector(-65, -15, 0)),  # 4
    Part.LineSegment(Vector(-65, -15, 0), Vector(-50, -15, 0)),  # 5
    Part.LineSegment(Vector(-50, -15, 0), Vector(-50, 15, 0)),  # 6
    Part.LineSegment(Vector(-50, 15, 0), Vector(-65, 15, 0)),  # 7
], False)
sketch13.addConstraint([
    Sketcher.Constraint("Coincident", 0, 2, 1, 1),
    Sketcher.Constraint("Coincident", 1, 2, 2, 1),
    Sketcher.Constraint("Coincident", 2, 2, 3, 1),
    Sketcher.Constraint("Coincident", 3, 2, 0, 1),
    Sketcher.Constraint("Coincident", 4, 2, 5, 1),
    Sketcher.Constraint("Coincident", 5, 2, 6, 1),
    Sketcher.Constraint("Coincident", 6, 2, 7, 1),
    Sketcher.Constraint("Coincident", 7, 2, 4, 1),
    Sketcher.Constraint("Vertical", 0),
    Sketcher.Constraint("Horizontal", 1),
    Sketcher.Constraint("Vertical", 2),
    Sketcher.Constraint("Horizontal", 3),
    Sketcher.Constraint("Vertical", 4),
    Sketcher.Constraint("Horizontal", 5),
    Sketcher.Constraint("Vertical", 6),
    Sketcher.Constraint("Horizontal", 7),
    Sketcher.Constraint("Symmetric", 2, 2, 4, 2, -1, 1),
    Sketcher.Constraint("Symmetric", 0, 2, 6, 2, -1, 1),
    Sketcher.Constraint("Horizontal", 1, 2, 4, 2),
    Sketcher.Constraint("DistanceX", 1, 1, 1, 2, Q("15 mm")),
    Sketcher.Constraint("DistanceY", 0, 2, 0, 1, Q("30 mm")),
    Sketcher.Constraint("DistanceX", -1, 1, 0, 2, Q("50 mm")),
])
pad6 = doc.addObject("PartDesign::Pad", "Pad005")
body.addObject(pad6)
pad6.Profile = sketch13
pad6.Length = 10
pad6.Reversed = True

# Sketch on YZ plane
sketch14 = doc.addObject("Sketcher::SketchObject", "Sketch013")
body.addObject(sketch14)
sketch14.AttachmentSupport = (doc.YZ_Plane, [""])
sketch14.MapMode = "FlatFace"
sketch14.AttachmentOffset = App.Placement(Vector(0, 0, -65), App.Rotation())
sketch14.addGeometry(Part.Circle(Vector(0, 5, 0), Vector(0, 0, 1), 2.5), False)
sketch14.addConstraint([
    Sketcher.Constraint("PointOnObject", 0, 3, -2),
    Sketcher.Constraint("Diameter", 0, Q("5 mm")),
    Sketcher.Constraint("DistanceY", -1, 1, 0, 3, Q("5 mm")),
])
pocket8 = doc.addObject("PartDesign::Pocket", "Pocket007")
body.addObject(pocket8)
pocket8.Profile = sketch14
pocket8.Type = "ThroughAll"
pocket8.Reversed = True

# Sketch on YZ plane
sketch15 = doc.addObject("Sketcher::SketchObject", "Sketch014")
body.addObject(sketch15)
sketch15.AttachmentSupport = (doc.YZ_Plane, [""])
sketch15.MapMode = "FlatFace"
sketch15.AttachmentOffset = App.Placement(Vector(0, 0, -65), App.Rotation())
sketch15.addGeometry([
    Part.LineSegment(Vector(1.767767, 10, 0), Vector(1.767767, 6.767767, 0)),  # 0
    Part.ArcOfCircle(Part.Circle(Vector(0, 5, 0), Vector(0, 0, 1), 2.5), math.radians(45), math.radians(90)),  # 1
    Part.ArcOfCircle(Part.Circle(Vector(0, 5, 0), Vector(0, 0, 1), 2.5), math.radians(90), math.radians(135)),  # 2
    Part.LineSegment(Vector(-1.767767, 6.767767, 0), Vector(-1.767767, 10, 0)),  # 3
    Part.LineSegment(Vector(-1.767767, 10, 0), Vector(1.767767, 10, 0)),  # 4
], False)
sketch15.addConstraint([
    Sketcher.Constraint("Coincident", 0, 2, 1, 1),
    Sketcher.Constraint("Tangent", 1, 2, 2, 1),
    Sketcher.Constraint("Coincident", 2, 2, 3, 1),
    Sketcher.Constraint("Coincident", 3, 2, 4, 1),
    Sketcher.Constraint("Coincident", 4, 2, 0, 1),
    Sketcher.Constraint("Vertical", 0),
    Sketcher.Constraint("Vertical", 3),
    Sketcher.Constraint("Horizontal", 4),
    Sketcher.Constraint("Equal", 1, 2),
    Sketcher.Constraint("Symmetric", 0, 2, 2, 2, -2),
    Sketcher.Constraint("PointOnObject", 1, 2, -2),
    Sketcher.Constraint("Radius", 1, Q("2.5 mm")),
    Sketcher.Constraint("DistanceY", -1, 1, 1, 3, Q("5 mm")),
    Sketcher.Constraint("DistanceY", -1, 1, 3, 2, Q("10 mm")),
    Sketcher.Constraint("DistanceX", 4, 1, 4, 2, Q("3.535534 mm")),
])
pocket9 = doc.addObject("PartDesign::Pocket", "Pocket008")
body.addObject(pocket9)
pocket9.Profile = sketch15
pocket9.Type = "ThroughAll"
pocket9.Reversed = True

doc.recompute()
